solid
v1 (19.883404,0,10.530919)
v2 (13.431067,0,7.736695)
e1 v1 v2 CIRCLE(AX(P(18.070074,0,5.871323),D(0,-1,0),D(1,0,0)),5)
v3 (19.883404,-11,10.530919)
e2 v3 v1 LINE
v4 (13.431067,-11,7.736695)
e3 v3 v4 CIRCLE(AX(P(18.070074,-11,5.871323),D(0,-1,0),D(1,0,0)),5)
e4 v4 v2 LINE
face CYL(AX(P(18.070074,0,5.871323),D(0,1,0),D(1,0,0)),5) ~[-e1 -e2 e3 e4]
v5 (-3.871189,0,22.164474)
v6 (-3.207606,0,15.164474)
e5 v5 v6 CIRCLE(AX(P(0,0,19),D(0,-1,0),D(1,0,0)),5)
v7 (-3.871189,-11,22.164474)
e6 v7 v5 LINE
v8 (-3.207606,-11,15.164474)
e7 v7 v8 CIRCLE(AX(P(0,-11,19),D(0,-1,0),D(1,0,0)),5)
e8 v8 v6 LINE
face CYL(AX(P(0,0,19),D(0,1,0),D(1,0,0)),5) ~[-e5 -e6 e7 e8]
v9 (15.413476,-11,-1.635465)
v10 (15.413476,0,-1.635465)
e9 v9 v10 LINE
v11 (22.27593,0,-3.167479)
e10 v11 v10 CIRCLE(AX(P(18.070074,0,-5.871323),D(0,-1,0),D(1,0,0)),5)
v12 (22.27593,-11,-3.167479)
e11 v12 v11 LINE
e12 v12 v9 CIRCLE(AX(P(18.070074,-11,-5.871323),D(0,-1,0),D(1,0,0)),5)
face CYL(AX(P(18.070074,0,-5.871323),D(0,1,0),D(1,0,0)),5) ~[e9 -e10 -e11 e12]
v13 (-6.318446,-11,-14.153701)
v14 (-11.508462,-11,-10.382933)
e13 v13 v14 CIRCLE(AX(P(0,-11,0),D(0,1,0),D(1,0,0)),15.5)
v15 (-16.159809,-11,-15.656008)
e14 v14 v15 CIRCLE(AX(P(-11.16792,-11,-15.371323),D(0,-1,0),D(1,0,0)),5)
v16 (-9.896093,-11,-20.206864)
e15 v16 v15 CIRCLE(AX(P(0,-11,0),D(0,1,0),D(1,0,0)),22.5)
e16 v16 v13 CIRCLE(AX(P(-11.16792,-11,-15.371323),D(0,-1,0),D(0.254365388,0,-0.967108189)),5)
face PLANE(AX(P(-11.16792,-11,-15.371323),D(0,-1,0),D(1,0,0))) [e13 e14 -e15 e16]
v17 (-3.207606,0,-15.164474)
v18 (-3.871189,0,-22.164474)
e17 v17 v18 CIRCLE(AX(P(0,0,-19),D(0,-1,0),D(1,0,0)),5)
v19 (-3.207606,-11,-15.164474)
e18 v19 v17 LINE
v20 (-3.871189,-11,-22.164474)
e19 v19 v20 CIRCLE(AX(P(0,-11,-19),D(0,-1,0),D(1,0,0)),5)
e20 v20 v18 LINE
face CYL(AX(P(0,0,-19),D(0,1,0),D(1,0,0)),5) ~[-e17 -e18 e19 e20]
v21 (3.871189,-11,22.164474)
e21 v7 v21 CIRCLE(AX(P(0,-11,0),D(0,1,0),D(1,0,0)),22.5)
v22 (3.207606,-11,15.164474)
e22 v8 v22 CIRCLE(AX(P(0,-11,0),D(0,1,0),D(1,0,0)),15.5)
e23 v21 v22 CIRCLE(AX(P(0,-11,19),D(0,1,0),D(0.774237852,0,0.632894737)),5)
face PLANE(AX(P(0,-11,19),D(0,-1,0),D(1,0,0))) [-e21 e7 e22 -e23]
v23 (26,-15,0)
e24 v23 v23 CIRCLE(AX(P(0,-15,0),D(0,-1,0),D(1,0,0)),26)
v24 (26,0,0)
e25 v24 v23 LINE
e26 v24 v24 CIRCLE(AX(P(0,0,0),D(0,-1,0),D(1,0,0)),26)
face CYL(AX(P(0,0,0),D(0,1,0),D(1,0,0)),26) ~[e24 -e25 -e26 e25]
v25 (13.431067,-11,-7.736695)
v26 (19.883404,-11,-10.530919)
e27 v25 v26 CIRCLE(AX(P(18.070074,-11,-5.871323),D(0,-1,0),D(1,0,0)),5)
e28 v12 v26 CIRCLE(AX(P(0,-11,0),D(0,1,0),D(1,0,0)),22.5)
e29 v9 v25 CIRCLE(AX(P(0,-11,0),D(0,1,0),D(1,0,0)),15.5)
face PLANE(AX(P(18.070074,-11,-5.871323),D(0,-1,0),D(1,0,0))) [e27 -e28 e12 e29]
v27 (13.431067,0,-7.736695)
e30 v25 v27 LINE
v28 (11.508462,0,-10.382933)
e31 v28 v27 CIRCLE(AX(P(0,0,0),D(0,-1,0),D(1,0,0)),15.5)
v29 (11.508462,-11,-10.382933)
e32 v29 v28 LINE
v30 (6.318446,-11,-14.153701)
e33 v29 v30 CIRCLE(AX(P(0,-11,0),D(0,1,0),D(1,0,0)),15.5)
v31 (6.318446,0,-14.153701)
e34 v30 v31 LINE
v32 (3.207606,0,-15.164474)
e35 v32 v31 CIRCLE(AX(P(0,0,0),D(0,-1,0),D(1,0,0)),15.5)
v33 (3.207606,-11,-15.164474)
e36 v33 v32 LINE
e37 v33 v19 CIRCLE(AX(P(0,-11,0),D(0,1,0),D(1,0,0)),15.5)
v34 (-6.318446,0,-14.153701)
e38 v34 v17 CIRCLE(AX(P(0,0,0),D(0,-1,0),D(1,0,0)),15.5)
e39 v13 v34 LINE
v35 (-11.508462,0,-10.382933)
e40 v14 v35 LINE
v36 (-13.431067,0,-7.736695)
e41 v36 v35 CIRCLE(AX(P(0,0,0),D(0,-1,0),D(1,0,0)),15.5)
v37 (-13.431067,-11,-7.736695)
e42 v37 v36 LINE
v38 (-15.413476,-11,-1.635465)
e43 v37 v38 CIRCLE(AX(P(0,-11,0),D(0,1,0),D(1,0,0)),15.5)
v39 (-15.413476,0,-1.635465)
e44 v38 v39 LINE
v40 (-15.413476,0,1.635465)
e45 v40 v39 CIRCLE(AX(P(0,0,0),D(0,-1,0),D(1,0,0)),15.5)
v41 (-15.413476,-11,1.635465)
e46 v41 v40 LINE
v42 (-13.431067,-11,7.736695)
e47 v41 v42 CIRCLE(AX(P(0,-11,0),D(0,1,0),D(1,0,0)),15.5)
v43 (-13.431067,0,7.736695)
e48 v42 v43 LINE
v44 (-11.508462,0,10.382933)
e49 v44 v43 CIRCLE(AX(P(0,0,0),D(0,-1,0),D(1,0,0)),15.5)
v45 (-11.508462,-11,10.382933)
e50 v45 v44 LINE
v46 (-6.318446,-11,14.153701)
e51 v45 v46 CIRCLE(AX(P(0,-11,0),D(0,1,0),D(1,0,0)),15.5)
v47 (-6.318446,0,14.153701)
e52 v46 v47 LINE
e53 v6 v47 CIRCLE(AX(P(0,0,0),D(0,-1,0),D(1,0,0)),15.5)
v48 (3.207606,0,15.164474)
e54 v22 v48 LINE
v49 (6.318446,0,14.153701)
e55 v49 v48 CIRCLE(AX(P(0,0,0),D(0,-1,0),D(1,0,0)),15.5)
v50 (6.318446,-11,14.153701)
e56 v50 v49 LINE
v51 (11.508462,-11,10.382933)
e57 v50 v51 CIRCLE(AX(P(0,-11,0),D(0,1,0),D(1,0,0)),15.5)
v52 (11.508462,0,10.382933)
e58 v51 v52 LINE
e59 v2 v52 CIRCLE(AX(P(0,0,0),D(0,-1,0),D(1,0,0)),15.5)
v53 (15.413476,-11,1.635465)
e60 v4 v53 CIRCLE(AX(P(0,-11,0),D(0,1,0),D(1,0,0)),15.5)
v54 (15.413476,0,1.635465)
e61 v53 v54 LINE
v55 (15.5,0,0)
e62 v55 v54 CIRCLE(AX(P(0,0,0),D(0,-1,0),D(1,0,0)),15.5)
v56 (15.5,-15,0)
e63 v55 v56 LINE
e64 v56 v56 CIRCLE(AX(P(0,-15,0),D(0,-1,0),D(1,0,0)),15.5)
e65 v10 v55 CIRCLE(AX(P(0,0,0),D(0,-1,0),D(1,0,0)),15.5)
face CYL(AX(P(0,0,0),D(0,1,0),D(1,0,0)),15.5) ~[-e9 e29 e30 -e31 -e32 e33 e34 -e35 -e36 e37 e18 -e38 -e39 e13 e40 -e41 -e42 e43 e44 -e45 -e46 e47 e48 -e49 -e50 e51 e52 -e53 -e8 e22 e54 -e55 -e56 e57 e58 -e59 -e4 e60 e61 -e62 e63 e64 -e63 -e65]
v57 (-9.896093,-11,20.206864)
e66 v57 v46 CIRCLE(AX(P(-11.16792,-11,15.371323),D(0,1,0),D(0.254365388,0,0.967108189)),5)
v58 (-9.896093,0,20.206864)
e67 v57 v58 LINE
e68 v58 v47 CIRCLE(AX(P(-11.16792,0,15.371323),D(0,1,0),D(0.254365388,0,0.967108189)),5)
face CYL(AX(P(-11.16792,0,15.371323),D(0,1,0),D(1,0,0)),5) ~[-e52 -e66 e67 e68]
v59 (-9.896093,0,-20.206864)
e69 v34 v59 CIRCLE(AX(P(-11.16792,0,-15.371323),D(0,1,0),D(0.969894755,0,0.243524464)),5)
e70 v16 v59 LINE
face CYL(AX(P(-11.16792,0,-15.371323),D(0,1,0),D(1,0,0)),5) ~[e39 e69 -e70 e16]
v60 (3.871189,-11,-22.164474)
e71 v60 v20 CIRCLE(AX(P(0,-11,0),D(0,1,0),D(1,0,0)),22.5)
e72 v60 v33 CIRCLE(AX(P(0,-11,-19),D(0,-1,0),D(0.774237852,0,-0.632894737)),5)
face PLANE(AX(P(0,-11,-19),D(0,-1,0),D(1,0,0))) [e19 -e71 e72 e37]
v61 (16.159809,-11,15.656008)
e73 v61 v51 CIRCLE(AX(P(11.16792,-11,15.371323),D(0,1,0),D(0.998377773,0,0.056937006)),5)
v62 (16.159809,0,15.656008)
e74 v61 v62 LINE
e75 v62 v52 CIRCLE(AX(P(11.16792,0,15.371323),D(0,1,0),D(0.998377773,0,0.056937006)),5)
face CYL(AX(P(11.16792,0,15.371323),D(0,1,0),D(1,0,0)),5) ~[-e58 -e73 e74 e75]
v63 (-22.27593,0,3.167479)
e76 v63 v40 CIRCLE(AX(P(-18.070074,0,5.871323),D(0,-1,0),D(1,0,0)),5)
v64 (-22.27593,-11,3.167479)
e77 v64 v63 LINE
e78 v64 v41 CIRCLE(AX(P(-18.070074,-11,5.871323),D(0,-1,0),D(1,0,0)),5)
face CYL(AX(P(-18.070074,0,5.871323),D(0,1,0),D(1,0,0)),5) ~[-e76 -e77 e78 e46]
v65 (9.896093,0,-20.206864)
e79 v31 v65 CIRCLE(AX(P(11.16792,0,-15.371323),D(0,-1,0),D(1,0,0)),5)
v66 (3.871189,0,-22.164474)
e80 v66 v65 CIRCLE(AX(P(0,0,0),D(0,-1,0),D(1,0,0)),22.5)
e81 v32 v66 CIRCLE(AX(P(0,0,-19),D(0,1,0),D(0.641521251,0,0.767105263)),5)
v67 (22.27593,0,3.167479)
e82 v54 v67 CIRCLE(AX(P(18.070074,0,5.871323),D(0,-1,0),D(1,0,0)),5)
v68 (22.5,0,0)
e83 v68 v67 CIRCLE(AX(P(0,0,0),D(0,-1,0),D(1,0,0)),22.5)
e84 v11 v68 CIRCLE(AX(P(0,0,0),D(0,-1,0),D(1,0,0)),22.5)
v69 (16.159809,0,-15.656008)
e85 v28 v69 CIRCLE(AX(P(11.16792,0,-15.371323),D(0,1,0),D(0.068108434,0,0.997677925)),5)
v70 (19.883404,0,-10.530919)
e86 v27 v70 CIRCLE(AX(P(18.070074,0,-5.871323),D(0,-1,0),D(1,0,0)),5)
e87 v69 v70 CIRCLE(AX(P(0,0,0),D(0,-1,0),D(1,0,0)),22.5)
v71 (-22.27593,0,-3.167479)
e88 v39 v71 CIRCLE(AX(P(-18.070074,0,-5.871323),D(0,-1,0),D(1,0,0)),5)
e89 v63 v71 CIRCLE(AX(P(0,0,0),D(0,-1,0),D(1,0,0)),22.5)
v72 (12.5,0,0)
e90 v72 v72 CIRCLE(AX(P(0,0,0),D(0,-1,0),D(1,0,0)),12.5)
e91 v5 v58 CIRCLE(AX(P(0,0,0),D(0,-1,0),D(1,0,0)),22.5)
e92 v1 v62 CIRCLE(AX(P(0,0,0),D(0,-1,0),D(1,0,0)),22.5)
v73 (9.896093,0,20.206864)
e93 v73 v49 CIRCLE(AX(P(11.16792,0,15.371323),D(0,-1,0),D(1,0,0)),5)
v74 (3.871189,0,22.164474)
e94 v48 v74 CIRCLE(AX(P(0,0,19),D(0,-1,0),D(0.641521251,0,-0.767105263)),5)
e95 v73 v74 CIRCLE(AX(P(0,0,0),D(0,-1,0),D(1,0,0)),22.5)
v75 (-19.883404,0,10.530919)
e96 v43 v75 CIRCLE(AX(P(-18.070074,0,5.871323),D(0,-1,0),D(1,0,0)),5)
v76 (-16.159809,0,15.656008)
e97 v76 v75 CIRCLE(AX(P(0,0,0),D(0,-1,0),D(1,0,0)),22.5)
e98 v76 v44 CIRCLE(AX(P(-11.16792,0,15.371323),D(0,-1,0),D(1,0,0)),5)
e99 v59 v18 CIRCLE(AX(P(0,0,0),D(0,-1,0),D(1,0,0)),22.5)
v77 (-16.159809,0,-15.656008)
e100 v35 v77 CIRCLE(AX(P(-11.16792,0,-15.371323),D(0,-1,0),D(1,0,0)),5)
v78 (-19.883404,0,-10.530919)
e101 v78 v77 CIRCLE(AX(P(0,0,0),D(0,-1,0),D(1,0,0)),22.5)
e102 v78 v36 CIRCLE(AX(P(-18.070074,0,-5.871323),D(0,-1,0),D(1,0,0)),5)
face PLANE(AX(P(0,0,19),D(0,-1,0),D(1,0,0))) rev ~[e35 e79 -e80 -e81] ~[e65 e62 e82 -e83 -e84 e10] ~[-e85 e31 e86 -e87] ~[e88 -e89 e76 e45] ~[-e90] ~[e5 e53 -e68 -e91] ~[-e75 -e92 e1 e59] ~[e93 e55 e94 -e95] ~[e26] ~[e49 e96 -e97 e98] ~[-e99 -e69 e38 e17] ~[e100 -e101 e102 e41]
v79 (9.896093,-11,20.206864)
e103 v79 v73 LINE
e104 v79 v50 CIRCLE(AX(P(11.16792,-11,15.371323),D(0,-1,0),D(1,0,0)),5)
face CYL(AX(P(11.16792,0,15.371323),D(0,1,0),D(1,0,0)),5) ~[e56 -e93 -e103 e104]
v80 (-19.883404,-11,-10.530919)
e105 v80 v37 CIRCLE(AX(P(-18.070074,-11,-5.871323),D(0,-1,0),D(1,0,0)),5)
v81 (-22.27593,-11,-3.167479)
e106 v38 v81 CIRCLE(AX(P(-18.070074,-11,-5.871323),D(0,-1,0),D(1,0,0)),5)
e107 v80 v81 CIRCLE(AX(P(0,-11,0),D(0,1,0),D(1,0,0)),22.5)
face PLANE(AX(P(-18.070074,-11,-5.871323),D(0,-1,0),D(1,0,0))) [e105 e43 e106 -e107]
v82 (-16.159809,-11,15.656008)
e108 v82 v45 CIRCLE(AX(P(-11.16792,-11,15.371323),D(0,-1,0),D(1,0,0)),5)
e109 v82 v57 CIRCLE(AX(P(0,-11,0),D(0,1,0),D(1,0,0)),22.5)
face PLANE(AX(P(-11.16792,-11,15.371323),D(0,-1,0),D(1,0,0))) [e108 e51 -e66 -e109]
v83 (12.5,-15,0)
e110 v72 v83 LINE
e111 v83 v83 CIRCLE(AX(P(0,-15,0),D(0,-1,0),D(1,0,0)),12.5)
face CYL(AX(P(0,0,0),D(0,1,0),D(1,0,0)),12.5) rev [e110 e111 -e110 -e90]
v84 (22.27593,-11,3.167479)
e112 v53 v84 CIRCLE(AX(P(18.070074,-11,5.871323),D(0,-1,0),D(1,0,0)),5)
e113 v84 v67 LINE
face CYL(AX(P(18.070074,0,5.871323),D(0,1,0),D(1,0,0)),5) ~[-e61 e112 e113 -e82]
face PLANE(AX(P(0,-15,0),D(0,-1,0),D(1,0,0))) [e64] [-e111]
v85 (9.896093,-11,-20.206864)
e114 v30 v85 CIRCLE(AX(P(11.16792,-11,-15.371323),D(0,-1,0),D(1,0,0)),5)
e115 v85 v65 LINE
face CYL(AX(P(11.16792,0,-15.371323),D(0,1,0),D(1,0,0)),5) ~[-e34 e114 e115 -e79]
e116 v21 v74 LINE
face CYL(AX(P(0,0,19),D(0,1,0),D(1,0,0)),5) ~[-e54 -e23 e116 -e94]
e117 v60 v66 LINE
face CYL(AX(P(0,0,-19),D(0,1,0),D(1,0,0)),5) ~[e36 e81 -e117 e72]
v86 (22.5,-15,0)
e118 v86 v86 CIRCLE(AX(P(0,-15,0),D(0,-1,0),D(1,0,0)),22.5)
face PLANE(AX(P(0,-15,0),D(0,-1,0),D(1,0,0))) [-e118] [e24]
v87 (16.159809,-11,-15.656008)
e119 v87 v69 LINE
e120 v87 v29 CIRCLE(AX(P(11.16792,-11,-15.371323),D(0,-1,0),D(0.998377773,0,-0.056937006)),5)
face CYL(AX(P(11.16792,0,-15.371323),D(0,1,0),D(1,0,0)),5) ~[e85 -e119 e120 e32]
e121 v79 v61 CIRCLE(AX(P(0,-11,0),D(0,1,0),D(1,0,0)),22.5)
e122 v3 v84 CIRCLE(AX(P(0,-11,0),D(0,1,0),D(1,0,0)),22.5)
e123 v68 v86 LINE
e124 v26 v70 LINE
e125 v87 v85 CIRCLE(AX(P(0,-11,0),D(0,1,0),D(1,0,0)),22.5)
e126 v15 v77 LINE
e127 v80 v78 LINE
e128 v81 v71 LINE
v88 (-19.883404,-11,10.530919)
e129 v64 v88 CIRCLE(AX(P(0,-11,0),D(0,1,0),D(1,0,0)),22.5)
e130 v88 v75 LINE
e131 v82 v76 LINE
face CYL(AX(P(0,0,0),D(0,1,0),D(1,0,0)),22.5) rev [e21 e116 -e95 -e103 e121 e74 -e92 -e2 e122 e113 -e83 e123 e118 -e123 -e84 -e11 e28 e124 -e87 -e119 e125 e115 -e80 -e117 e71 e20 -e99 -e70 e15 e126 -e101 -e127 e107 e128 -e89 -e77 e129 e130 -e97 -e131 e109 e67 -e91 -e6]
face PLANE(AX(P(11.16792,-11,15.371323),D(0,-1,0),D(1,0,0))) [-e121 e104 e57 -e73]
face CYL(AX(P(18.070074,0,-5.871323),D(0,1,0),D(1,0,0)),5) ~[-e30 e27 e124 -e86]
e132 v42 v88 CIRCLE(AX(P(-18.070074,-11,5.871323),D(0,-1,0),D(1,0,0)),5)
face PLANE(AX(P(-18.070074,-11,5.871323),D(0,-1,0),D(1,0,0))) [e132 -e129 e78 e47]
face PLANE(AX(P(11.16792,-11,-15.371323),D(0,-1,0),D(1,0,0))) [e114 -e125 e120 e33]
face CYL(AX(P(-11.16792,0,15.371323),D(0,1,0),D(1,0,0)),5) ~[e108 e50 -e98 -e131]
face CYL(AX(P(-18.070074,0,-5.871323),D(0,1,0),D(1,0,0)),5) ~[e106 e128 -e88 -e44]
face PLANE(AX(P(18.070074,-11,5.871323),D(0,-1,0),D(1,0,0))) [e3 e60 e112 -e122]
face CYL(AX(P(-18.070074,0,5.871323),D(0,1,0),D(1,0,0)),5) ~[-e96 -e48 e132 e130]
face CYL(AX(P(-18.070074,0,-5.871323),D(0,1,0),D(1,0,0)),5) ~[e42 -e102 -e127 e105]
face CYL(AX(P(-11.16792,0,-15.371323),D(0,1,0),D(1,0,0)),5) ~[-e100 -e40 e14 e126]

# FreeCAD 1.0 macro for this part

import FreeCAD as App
import Part
import Sketcher
from FreeCAD import Vector
Q = App.Units.Quantity

doc = App.newDocument("Part")
body = doc.addObject("PartDesign::Body", "Body")

sketch1 = body.newObject("Sketcher::SketchObject", "Sketch")
sketch1.AttachmentSupport = (doc.getObject("XZ_Plane"), [""])
sketch1.MapMode = "FlatFace"
sketch1.addGeometry([
    Part.Circle(Vector(0, 0, 0), Vector(0, 0, 1), 15.5),
    Part.Circle(Vector(0, 0, 0), Vector(0, 0, 1), 12.5),
], False)
sketch1.addConstraint([
    Sketcher.Constraint("Coincident", 0, 3, -1, 1),
    Sketcher.Constraint("Coincident", 1, 3, -1, 1),
    Sketcher.Constraint("Diameter", 0, Q("31 mm")),
    Sketcher.Constraint("Diameter", 1, Q("25 mm")),
])
pad1 = body.newObject("PartDesign::Pad", "Pad")
pad1.Profile = sketch1
pad1.Length = 15
body2 = doc.addObject("PartDesign::Body", "Body001")

sketch2 = body2.newObject("Sketcher::SketchObject", "Sketch001")
sketch2.AttachmentSupport = (doc.getObject("XZ_Plane001"), [""])
sketch2.MapMode = "FlatFace"
sketch2.addGeometry([
    Part.Circle(Vector(0, 0, 0), Vector(0, 0, 1), 26),
    Part.Circle(Vector(0, 0, 0), Vector(0, 0, 1), 22.5),
], False)
sketch2.addConstraint([
    Sketcher.Constraint("Coincident", 0, 3, -1, 1),
    Sketcher.Constraint("Coincident", 1, 3, -1, 1),
    Sketcher.Constraint("Diameter", 0, Q("52 mm")),
    Sketcher.Constraint("Diameter", 1, Q("45 mm")),
])
pad2 = body2.newObject("PartDesign::Pad", "Pad001")
pad2.Profile = sketch2
pad2.Length = 15
body.AllowCompound = True
doc.recompute()

boolean = body.newObject("PartDesign::Boolean", "Boolean")
boolean.Type = "Fuse"
boolean.addObjects([body2])

sketch3 = body.newObject("Sketcher::SketchObject", "Sketch002")
sketch3.AttachmentSupport = (doc.getObject("XZ_Plane"), [""])
sketch3.MapMode = "FlatFace"
sketch3.addGeometry([
    Part.Circle(Vector(0, 19, 0), Vector(0, 0, 1), 5),
    Part.Circle(Vector(11.16792, 15.371323, 0), Vector(0, 0, 1), 5),
    Part.Circle(Vector(18.070074, 5.871323, 0), Vector(0, 0, 1), 5),
    Part.Circle(Vector(18.070074, -5.871323, 0), Vector(0, 0, 1), 5),
    Part.Circle(Vector(11.16792, -15.371323, 0), Vector(0, 0, 1), 5),
    Part.Circle(Vector(0, -19, 0), Vector(0, 0, 1), 5),
    Part.Circle(Vector(-11.16792, -15.371323, 0), Vector(0, 0, 1), 5),
    Part.Circle(Vector(-18.070074, -5.871323, 0), Vector(0, 0, 1), 5),
    Part.Circle(Vector(-18.070074, 5.871323, 0), Vector(0, 0, 1), 5),
    Part.Circle(Vector(-11.16792, 15.371323, 0), Vector(0, 0, 1), 5),
], False)
sketch3.addConstraint([
    Sketcher.Constraint("Equal", 0, 1),
    Sketcher.Constraint("Equal", 1, 2),
    Sketcher.Constraint("Equal", 2, 3),
    Sketcher.Constraint("Equal", 3, 4),
    Sketcher.Constraint("Equal", 4, 5),
    Sketcher.Constraint("Equal", 5, 6),
    Sketcher.Constraint("Equal", 6, 7),
    Sketcher.Constraint("Equal", 7, 8),
    Sketcher.Constraint("Equal", 8, 9),
    Sketcher.Constraint("Symmetric", 0, 3, 5, 3, -1, 1),
    Sketcher.Constraint("Symmetric", 1, 3, 6, 3, -1, 1),
    Sketcher.Constraint("Symmetric", 2, 3, 7, 3, -1, 1),
    Sketcher.Constraint("Symmetric", 3, 3, 8, 3, -1, 1),
    Sketcher.Constraint("Symmetric", 4, 3, 9, 3, -1, 1),
    Sketcher.Constraint("Symmetric", 4, 3, 6, 3, -2),
    Sketcher.Constraint("Symmetric", 3, 3, 7, 3, -2),
    Sketcher.Constraint("PointOnObject", 0, 3, -2),
    Sketcher.Constraint("Diameter", 0, Q("10 mm")),
    Sketcher.Constraint("DistanceY", -1, 1, 0, 3, Q("19 mm")),
    Sketcher.Constraint("DistanceY", 2, 3, 1, 3, Q("9.5 mm")),
    Sketcher.Constraint("DistanceX", -1, 1, 1, 3, Q("11.16792 mm")),
    Sketcher.Constraint("DistanceY", -1, 1, 1, 3, Q("15.371323 mm")),
    Sketcher.Constraint("DistanceX", -1, 1, 2, 3, Q("18.070074 mm")),
])
pad3 = body.newObject("PartDesign::Pad", "Pad002")
pad3.Profile = sketch3
pad3.Length = 11

doc.recompute()
